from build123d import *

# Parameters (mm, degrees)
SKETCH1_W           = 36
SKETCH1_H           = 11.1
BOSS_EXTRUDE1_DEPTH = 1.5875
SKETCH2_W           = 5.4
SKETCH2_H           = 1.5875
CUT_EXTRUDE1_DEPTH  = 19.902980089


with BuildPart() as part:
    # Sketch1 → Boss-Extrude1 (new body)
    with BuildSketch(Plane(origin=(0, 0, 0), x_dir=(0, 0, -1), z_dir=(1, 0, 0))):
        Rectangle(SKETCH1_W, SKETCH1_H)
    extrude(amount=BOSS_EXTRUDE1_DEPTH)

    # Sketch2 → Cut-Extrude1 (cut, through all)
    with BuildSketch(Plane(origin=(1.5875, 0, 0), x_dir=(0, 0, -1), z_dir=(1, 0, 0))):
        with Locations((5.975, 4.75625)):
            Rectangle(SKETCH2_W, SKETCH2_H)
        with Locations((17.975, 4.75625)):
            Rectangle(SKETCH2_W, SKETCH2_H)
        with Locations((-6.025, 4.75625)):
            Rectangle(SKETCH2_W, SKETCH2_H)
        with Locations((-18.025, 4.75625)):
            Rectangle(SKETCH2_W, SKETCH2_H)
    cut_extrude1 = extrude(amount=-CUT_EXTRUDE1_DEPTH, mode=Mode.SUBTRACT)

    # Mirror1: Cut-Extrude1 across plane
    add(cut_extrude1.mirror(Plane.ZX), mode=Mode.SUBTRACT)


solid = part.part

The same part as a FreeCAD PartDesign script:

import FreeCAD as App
import Part
import Sketcher
from FreeCAD import Vector

doc = App.newDocument("Part")
body = doc.addObject("PartDesign::Body", "Body")

# Sketch on YZ plane
sketch1 = doc.addObject("Sketcher::SketchObject", "Sketch")
body.addObject(sketch1)
sketch1.AttachmentSupport = (doc.YZ_Plane, [""])
sketch1.MapMode = "FlatFace"
sketch1.addGeometry([
    Part.LineSegment(Vector(6, 18, 0), Vector(-6, 18, 0)),
    Part.LineSegment(Vector(-6, 18, 0), Vector(-6, -18, 0)),
    Part.LineSegment(Vector(-6, -18, 0), Vector(6, -18, 0)),
    Part.LineSegment(Vector(6, -18, 0), Vector(6, 18, 0)),
], False)
sketch1.addConstraint([
    Sketcher.Constraint("Coincident", 0, 2, 1, 1),
    Sketcher.Constraint("Coincident", 1, 2, 2, 1),
    Sketcher.Constraint("Coincident", 2, 2, 3, 1),
    Sketcher.Constraint("Coincident", 3, 2, 0, 1),
    Sketcher.Constraint("Horizontal", 0),
    Sketcher.Constraint("Vertical", 1),
    Sketcher.Constraint("Horizontal", 2),
    Sketcher.Constraint("Vertical", 3),
    Sketcher.Constraint("Symmetric", 0, 2, 2, 2, -1, 1),
    Sketcher.Constraint("DistanceY", 1, 2, 1, 1, 36.0),
    Sketcher.Constraint("DistanceX", 0, 2, 0, 1, 11.1),
])
pad1 = doc.addObject("PartDesign::Pad", "Pad")
body.addObject(pad1)
pad1.Profile = sketch1
pad1.Length = 1.5875

# Sketch on YZ plane
sketch2 = doc.addObject("Sketcher::SketchObject", "Sketch001")
body.addObject(sketch2)
sketch2.AttachmentSupport = (doc.YZ_Plane, [""])
sketch2.MapMode = "FlatFace"
sketch2.AttachmentOffset = App.Placement(Vector(0, 0, 1.5875), App.Rotation())
sketch2.addGeometry([
    Part.LineSegment(Vector(5.5, -3.3, 0), Vector(4, -3.3, 0)),  # 0
    Part.LineSegment(Vector(4, -3.3, 0), Vector(4, -8.7, 0)),  # 1
    Part.LineSegment(Vector(4, -8.7, 0), Vector(5.5, -8.7, 0)),  # 2
    Part.LineSegment(Vector(5.5, -8.7, 0), Vector(5.5, -3.3, 0)),  # 3
    Part.LineSegment(Vector(5.5, -15.3, 0), Vector(4, -15.3, 0)),  # 4
    Part.LineSegment(Vector(4, -15.3, 0), Vector(4, -20.7, 0)),  # 5
    Part.LineSegment(Vector(4, -20.7, 0), Vector(5.5, -20.7, 0)),  # 6
    Part.LineSegment(Vector(5.5, -20.7, 0), Vector(5.5, -15.3, 0)),  # 7
    Part.LineSegment(Vector(5.5, 8.7, 0), Vector(4, 8.7, 0)),  # 8
    Part.LineSegment(Vector(4, 8.7, 0), Vector(4, 3.3, 0)),  # 9
    Part.LineSegment(Vector(4, 3.3, 0), Vector(5.5, 3.3, 0)),  # 10
    Part.LineSegment(Vector(5.5, 3.3, 0), Vector(5.5, 8.7, 0)),  # 11
    Part.LineSegment(Vector(5.5, 20.7, 0), Vector(4, 20.7, 0)),  # 12
    Part.LineSegment(Vector(4, 20.7, 0), Vector(4, 15.3, 0)),  # 13
    Part.LineSegment(Vector(4, 15.3, 0), Vector(5.5, 15.3, 0)),  # 14
    Part.LineSegment(Vector(5.5, 15.3, 0), Vector(5.5, 20.7, 0)),  # 15
], False)
sketch2.addConstraint([
    Sketcher.Constraint("Coincident", 0, 2, 1, 1),
    Sketcher.Constraint("Coincident", 1, 2, 2, 1),
    Sketcher.Constraint("Coincident", 2, 2, 3, 1),
    Sketcher.Constraint("Coincident", 3, 2, 0, 1),
    Sketcher.Constraint("Coincident", 4, 2, 5, 1),
    Sketcher.Constraint("Coincident", 5, 2, 6, 1),
    Sketcher.Constraint("Coincident", 6, 2, 7, 1),
    Sketcher.Constraint("Coincident", 7, 2, 4, 1),
    Sketcher.Constraint("Coincident", 8, 2, 9, 1),
    Sketcher.Constraint("Coincident", 9, 2, 10, 1),
    Sketcher.Constraint("Coincident", 10, 2, 11, 1),
    Sketcher.Constraint("Coincident", 11, 2, 8, 1),
    Sketcher.Constraint("Coincident", 12, 2, 13, 1),
    Sketcher.Constraint("Coincident", 13, 2, 14, 1),
    Sketcher.Constraint("Coincident", 14, 2, 15, 1),
    Sketcher.Constraint("Coincident", 15, 2, 12, 1),
    Sketcher.Constraint("Horizontal", 0),
    Sketcher.Constraint("Vertical", 1),
    Sketcher.Constraint("Horizontal", 2),
    Sketcher.Constraint("Vertical", 3),
    Sketcher.Constraint("Horizontal", 4),
    Sketcher.Constraint("Vertical", 5),
    Sketcher.Constraint("Horizontal", 6),
    Sketcher.Constraint("Vertical", 7),
    Sketcher.Constraint("Horizontal", 8),
    Sketcher.Constraint("Vertical", 9),
    Sketcher.Constraint("Horizontal", 10),
    Sketcher.Constraint("Vertical", 11),
    Sketcher.Constraint("Horizontal", 12),
    Sketcher.Constraint("Vertical", 13),
    Sketcher.Constraint("Horizontal", 14),
    Sketcher.Constraint("Vertical", 15),
    Sketcher.Constraint("Vertical", 1, 2, 4, 2),
    Sketcher.Constraint("Vertical", 3, 2, 6, 2),
    Sketcher.Constraint("Vertical", 5, 2, 8, 2),
    Sketcher.Constraint("Vertical", 7, 2, 10, 2),
    Sketcher.Constraint("Vertical", 9, 2, 12, 2),
    Sketcher.Constraint("Vertical", 11, 2, 14, 2),
    Sketcher.Constraint("Equal", 3, 5),
    Sketcher.Constraint("Equal", 7, 9),
    Sketcher.Constraint("Equal", 11, 13),
    Sketcher.Constraint("DistanceY", 1, 2, 1, 1, 5.4),
    Sketcher.Constraint("DistanceY", 4, 2, 0, 2, 12.0),
    Sketcher.Constraint("DistanceY", 0, 2, 8, 2, 12.0),
    Sketcher.Constraint("DistanceY", 8, 2, 12, 2, 12.0),
    Sketcher.Constraint("DistanceX", -1, 1, 2, 2, 5.55),
    Sketcher.Constraint("DistanceX", 0, 2, 0, 1, 1.5875),
    Sketcher.Constraint("DistanceY", 0, 2, -1, 1, 3.275),
])
pocket1 = doc.addObject("PartDesign::Pocket", "Pocket")
body.addObject(pocket1)
pocket1.Profile = sketch2
pocket1.Type = "ThroughAll"
doc.recompute()

mirrored = doc.addObject("PartDesign::Mirrored", "Mirrored")
body.addObject(mirrored)
mirrored.Originals = [pocket1]
mirrored.MirrorPlane = (doc.XZ_Plane, [""])
body.Tip = mirrored

doc.recompute()
